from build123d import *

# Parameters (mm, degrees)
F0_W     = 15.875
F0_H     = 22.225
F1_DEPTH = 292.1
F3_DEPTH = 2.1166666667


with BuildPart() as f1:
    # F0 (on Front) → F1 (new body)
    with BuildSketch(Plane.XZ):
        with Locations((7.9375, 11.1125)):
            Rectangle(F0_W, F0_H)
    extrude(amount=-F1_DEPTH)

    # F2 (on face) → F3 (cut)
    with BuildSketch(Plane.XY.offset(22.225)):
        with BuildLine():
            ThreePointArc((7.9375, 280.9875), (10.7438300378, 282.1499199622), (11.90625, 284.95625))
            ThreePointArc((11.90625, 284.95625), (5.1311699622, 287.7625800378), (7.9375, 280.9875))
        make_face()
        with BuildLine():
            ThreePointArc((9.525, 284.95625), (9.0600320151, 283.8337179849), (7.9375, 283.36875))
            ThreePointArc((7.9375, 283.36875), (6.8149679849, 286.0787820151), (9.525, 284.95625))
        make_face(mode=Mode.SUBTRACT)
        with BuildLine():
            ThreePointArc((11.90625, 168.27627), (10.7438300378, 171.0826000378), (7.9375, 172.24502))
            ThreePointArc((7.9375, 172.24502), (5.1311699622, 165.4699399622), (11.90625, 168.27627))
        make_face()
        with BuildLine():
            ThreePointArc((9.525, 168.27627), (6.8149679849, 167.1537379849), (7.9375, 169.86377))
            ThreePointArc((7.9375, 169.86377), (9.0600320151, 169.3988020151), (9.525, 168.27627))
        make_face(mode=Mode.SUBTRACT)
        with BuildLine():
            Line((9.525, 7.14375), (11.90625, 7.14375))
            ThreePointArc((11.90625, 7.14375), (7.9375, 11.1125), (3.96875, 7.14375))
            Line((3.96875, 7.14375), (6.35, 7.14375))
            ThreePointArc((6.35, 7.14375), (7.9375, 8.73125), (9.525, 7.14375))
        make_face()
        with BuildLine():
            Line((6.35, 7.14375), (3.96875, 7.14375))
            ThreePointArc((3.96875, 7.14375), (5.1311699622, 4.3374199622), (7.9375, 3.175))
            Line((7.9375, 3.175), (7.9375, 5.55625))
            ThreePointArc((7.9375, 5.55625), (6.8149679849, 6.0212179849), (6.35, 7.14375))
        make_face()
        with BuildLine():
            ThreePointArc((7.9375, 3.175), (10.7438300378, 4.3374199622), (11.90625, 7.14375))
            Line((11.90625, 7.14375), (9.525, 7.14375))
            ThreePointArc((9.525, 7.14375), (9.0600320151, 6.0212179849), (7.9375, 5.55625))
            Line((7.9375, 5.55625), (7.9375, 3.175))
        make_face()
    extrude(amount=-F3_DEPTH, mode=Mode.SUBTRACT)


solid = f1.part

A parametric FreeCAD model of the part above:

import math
import FreeCAD as App
import Part
import Sketcher
Q = App.Units.Quantity

doc = App.newDocument("Part")
params = doc.addObject("Spreadsheet::Sheet", "Params")
for row, (alias, value) in enumerate([
    ("sketch1_width", "0.625 in"),
    ("sketch1_height", "0.875 in"),
    ("pad1_length", "11.5 in"),
    ("sketch2_radius", "0.15625 in"),
    ("sketch2_radius2", "0.0625 in"),
    ("pocket1_length", "2.116667 mm"),
], start=1):
    params.set(f"A{row}", alias)
    params.set(f"B{row}", "=" + value)
    params.setAlias(f"B{row}", alias)

body = doc.addObject("PartDesign::Body", "Body")

sketch1 = body.newObject("Sketcher::SketchObject", "Sketch")
sketch1.AttachmentSupport = (doc.getObject("XZ_Plane"), [""])
sketch1.MapMode = "FlatFace"
sketch1.addGeometry(Part.LineSegment(App.Vector(0, 22, 0), App.Vector(0, 0, 0)), False)
sketch1.addGeometry(Part.LineSegment(App.Vector(0, 0, 0), App.Vector(16, 0, 0)), False)
sketch1.addGeometry(Part.LineSegment(App.Vector(16, 0, 0), App.Vector(16, 22, 0)), False)
sketch1.addGeometry(Part.LineSegment(App.Vector(16, 22, 0), App.Vector(0, 22, 0)), False)
sketch1.addConstraint(Sketcher.Constraint("Coincident", 0, 2, 1, 1))
sketch1.addConstraint(Sketcher.Constraint("Coincident", 1, 2, 2, 1))
sketch1.addConstraint(Sketcher.Constraint("Coincident", 2, 2, 3, 1))
sketch1.addConstraint(Sketcher.Constraint("Coincident", 3, 2, 0, 1))
sketch1.addConstraint(Sketcher.Constraint("Vertical", 0))
sketch1.addConstraint(Sketcher.Constraint("Horizontal", 1))
sketch1.addConstraint(Sketcher.Constraint("Vertical", 2))
sketch1.addConstraint(Sketcher.Constraint("Horizontal", 3))
sketch1.addConstraint(Sketcher.Constraint("Coincident", 0, 2, -1, 1))
sketch1.addConstraint(Sketcher.Constraint("DistanceX", 1, 1, 1, 2, Q("0.625 in")))
sketch1.addConstraint(Sketcher.Constraint("DistanceY", 0, 2, 0, 1, Q("0.875 in")))
sketch1.setExpression("Constraints[9]", "Params.sketch1_width")
sketch1.setExpression("Constraints[10]", "Params.sketch1_height")
pad1 = body.newObject("PartDesign::Pad", "Pad")
pad1.Profile = sketch1
pad1.setExpression("Length", "Params.pad1_length")
pad1.Reversed = True

sketch2 = body.newObject("Sketcher::SketchObject", "Sketch001")
sketch2.AttachmentSupport = (doc.getObject("XY_Plane"), [""])
sketch2.MapMode = "FlatFace"
sketch2.AttachmentOffset = App.Placement(App.Vector(0, 0, 0.875 * 25.4), App.Rotation())
sketch2.addGeometry(Part.ArcOfCircle(Part.Circle(App.Vector(7.9, 285, 0), App.Vector(0, 0, 1), 4), math.radians(-90), math.radians(0)), False)
sketch2.addGeometry(Part.ArcOfCircle(Part.Circle(App.Vector(7.9, 285, 0), App.Vector(0, 0, 1), 4), math.radians(0), math.radians(270)), False)
sketch2.addGeometry(Part.ArcOfCircle(Part.Circle(App.Vector(7.9, 285, 0), App.Vector(0, 0, 1), 1.6), math.radians(0), math.radians(270)), False)
sketch2.addGeometry(Part.ArcOfCircle(Part.Circle(App.Vector(7.9, 285, 0), App.Vector(0, 0, 1), 1.6), math.radians(-90), math.radians(0)), False)
sketch2.addGeometry(Part.ArcOfCircle(Part.Circle(App.Vector(7.9, 168.3, 0), App.Vector(0, 0, 1), 4), math.radians(0), math.radians(90)), False)
sketch2.addGeometry(Part.ArcOfCircle(Part.Circle(App.Vector(7.9, 168.3, 0), App.Vector(0, 0, 1), 4), math.radians(90), math.radians(360)), False)
sketch2.addGeometry(Part.ArcOfCircle(Part.Circle(App.Vector(7.9, 168.3, 0), App.Vector(0, 0, 1), 1.6), math.radians(0), math.radians(90)), False)
sketch2.addGeometry(Part.ArcOfCircle(Part.Circle(App.Vector(7.9, 168.3, 0), App.Vector(0, 0, 1), 1.6), math.radians(90), math.radians(360)), False)
sketch2.addGeometry(Part.ArcOfCircle(Part.Circle(App.Vector(7.9, 7.1, 0), App.Vector(0, 0, 1), 4), math.radians(0), math.radians(180)), False)
sketch2.addGeometry(Part.ArcOfCircle(Part.Circle(App.Vector(7.9, 7.1, 0), App.Vector(0, 0, 1), 4), math.radians(180), math.radians(270)), False)
sketch2.addGeometry(Part.ArcOfCircle(Part.Circle(App.Vector(7.9, 7.1, 0), App.Vector(0, 0, 1), 4), math.radians(-90), math.radians(0)), False)
sketch2.addGeometry(Part.ArcOfCircle(Part.Circle(App.Vector(7.9, 7.1, 0), App.Vector(0, 0, 1), 1.6), math.radians(180), math.radians(270)), False)
sketch2.addGeometry(Part.ArcOfCircle(Part.Circle(App.Vector(7.9, 7.1, 0), App.Vector(0, 0, 1), 1.6), math.radians(0), math.radians(180)), False)
sketch2.addGeometry(Part.ArcOfCircle(Part.Circle(App.Vector(7.9, 7.1, 0), App.Vector(0, 0, 1), 1.6), math.radians(-90), math.radians(0)), False)
sketch2.addConstraint(Sketcher.Constraint("Tangent", 0, 1, 1, 2))
sketch2.addConstraint(Sketcher.Constraint("Coincident", 1, 1, 0, 2))
sketch2.addConstraint(Sketcher.Constraint("Tangent", 2, 1, 3, 2))
sketch2.addConstraint(Sketcher.Constraint("Coincident", 3, 1, 2, 2))
sketch2.addConstraint(Sketcher.Constraint("Tangent", 4, 1, 5, 2))
sketch2.addConstraint(Sketcher.Constraint("Coincident", 5, 1, 4, 2))
sketch2.addConstraint(Sketcher.Constraint("Tangent", 6, 1, 7, 2))
sketch2.addConstraint(Sketcher.Constraint("Coincident", 7, 1, 6, 2))
sketch2.addConstraint(Sketcher.Constraint("Tangent", 8, 2, 9, 1))
sketch2.addConstraint(Sketcher.Constraint("Tangent", 9, 2, 10, 1))
sketch2.addConstraint(Sketcher.Constraint("Tangent", 10, 2, 8, 1))
sketch2.addConstraint(Sketcher.Constraint("Tangent", 11, 1, 12, 2))
sketch2.addConstraint(Sketcher.Constraint("Tangent", 12, 1, 13, 2))
sketch2.addConstraint(Sketcher.Constraint("Tangent", 13, 1, 11, 2))
sketch2.addConstraint(Sketcher.Constraint("Coincident", 2, 3, 0, 3))
sketch2.addConstraint(Sketcher.Constraint("Coincident", 6, 3, 4, 3))
sketch2.addConstraint(Sketcher.Constraint("Coincident", 11, 3, 8, 3))
sketch2.addConstraint(Sketcher.Constraint("Equal", 1, 4))
sketch2.addConstraint(Sketcher.Constraint("Equal", 3, 6))
sketch2.addConstraint(Sketcher.Constraint("Equal", 5, 8))
sketch2.addConstraint(Sketcher.Constraint("Equal", 7, 11))
sketch2.addConstraint(Sketcher.Constraint("Horizontal", 3, 3, 1, 1))
sketch2.addConstraint(Sketcher.Constraint("Horizontal", 1, 1, 2, 1))
sketch2.addConstraint(Sketcher.Constraint("Horizontal", 7, 3, 4, 1))
sketch2.addConstraint(Sketcher.Constraint("Horizontal", 4, 1, 6, 1))
sketch2.addConstraint(Sketcher.Constraint("Horizontal", 13, 3, 8, 2))
sketch2.addConstraint(Sketcher.Constraint("Horizontal", 8, 2, 10, 2))
sketch2.addConstraint(Sketcher.Constraint("Horizontal", 10, 2, 11, 1))
sketch2.addConstraint(Sketcher.Constraint("Horizontal", 11, 1, 12, 1))
sketch2.addConstraint(Sketcher.Constraint("Vertical", 3, 3, 4, 3))
sketch2.addConstraint(Sketcher.Constraint("Vertical", 7, 3, 8, 3))
sketch2.addConstraint(Sketcher.Constraint("Vertical", 13, 3, 0, 1))
sketch2.addConstraint(Sketcher.Constraint("Vertical", 0, 1, 3, 1))
sketch2.addConstraint(Sketcher.Constraint("Vertical", 3, 1, 5, 1))
sketch2.addConstraint(Sketcher.Constraint("Vertical", 5, 1, 7, 1))
sketch2.addConstraint(Sketcher.Constraint("Vertical", 7, 1, 9, 2))
sketch2.addConstraint(Sketcher.Constraint("Vertical", 9, 2, 13, 1))
sketch2.addConstraint(Sketcher.Constraint("Radius", 0, Q("0.15625 in")))
sketch2.addConstraint(Sketcher.Constraint("Radius", 2, Q("0.0625 in")))
sketch2.addConstraint(Sketcher.Constraint("DistanceX", -1, 1, 11, 1, Q("0.25 in")))
sketch2.addConstraint(Sketcher.Constraint("DistanceY", -1, 1, 0, 3, Q("11.21875 in")))
sketch2.addConstraint(Sketcher.Constraint("DistanceY", -1, 1, 8, 3, Q("0.28125 in")))
sketch2.addConstraint(Sketcher.Constraint("DistanceY", -1, 1, 5, 1, Q("6.7813 in")))
sketch2.setExpression("Constraints[37]", "Params.sketch2_radius")
sketch2.setExpression("Constraints[38]", "Params.sketch2_radius2")
pocket1 = body.newObject("PartDesign::Pocket", "Pocket")
pocket1.Profile = sketch2
pocket1.setExpression("Length", "Params.pocket1_length")

doc.recompute()
